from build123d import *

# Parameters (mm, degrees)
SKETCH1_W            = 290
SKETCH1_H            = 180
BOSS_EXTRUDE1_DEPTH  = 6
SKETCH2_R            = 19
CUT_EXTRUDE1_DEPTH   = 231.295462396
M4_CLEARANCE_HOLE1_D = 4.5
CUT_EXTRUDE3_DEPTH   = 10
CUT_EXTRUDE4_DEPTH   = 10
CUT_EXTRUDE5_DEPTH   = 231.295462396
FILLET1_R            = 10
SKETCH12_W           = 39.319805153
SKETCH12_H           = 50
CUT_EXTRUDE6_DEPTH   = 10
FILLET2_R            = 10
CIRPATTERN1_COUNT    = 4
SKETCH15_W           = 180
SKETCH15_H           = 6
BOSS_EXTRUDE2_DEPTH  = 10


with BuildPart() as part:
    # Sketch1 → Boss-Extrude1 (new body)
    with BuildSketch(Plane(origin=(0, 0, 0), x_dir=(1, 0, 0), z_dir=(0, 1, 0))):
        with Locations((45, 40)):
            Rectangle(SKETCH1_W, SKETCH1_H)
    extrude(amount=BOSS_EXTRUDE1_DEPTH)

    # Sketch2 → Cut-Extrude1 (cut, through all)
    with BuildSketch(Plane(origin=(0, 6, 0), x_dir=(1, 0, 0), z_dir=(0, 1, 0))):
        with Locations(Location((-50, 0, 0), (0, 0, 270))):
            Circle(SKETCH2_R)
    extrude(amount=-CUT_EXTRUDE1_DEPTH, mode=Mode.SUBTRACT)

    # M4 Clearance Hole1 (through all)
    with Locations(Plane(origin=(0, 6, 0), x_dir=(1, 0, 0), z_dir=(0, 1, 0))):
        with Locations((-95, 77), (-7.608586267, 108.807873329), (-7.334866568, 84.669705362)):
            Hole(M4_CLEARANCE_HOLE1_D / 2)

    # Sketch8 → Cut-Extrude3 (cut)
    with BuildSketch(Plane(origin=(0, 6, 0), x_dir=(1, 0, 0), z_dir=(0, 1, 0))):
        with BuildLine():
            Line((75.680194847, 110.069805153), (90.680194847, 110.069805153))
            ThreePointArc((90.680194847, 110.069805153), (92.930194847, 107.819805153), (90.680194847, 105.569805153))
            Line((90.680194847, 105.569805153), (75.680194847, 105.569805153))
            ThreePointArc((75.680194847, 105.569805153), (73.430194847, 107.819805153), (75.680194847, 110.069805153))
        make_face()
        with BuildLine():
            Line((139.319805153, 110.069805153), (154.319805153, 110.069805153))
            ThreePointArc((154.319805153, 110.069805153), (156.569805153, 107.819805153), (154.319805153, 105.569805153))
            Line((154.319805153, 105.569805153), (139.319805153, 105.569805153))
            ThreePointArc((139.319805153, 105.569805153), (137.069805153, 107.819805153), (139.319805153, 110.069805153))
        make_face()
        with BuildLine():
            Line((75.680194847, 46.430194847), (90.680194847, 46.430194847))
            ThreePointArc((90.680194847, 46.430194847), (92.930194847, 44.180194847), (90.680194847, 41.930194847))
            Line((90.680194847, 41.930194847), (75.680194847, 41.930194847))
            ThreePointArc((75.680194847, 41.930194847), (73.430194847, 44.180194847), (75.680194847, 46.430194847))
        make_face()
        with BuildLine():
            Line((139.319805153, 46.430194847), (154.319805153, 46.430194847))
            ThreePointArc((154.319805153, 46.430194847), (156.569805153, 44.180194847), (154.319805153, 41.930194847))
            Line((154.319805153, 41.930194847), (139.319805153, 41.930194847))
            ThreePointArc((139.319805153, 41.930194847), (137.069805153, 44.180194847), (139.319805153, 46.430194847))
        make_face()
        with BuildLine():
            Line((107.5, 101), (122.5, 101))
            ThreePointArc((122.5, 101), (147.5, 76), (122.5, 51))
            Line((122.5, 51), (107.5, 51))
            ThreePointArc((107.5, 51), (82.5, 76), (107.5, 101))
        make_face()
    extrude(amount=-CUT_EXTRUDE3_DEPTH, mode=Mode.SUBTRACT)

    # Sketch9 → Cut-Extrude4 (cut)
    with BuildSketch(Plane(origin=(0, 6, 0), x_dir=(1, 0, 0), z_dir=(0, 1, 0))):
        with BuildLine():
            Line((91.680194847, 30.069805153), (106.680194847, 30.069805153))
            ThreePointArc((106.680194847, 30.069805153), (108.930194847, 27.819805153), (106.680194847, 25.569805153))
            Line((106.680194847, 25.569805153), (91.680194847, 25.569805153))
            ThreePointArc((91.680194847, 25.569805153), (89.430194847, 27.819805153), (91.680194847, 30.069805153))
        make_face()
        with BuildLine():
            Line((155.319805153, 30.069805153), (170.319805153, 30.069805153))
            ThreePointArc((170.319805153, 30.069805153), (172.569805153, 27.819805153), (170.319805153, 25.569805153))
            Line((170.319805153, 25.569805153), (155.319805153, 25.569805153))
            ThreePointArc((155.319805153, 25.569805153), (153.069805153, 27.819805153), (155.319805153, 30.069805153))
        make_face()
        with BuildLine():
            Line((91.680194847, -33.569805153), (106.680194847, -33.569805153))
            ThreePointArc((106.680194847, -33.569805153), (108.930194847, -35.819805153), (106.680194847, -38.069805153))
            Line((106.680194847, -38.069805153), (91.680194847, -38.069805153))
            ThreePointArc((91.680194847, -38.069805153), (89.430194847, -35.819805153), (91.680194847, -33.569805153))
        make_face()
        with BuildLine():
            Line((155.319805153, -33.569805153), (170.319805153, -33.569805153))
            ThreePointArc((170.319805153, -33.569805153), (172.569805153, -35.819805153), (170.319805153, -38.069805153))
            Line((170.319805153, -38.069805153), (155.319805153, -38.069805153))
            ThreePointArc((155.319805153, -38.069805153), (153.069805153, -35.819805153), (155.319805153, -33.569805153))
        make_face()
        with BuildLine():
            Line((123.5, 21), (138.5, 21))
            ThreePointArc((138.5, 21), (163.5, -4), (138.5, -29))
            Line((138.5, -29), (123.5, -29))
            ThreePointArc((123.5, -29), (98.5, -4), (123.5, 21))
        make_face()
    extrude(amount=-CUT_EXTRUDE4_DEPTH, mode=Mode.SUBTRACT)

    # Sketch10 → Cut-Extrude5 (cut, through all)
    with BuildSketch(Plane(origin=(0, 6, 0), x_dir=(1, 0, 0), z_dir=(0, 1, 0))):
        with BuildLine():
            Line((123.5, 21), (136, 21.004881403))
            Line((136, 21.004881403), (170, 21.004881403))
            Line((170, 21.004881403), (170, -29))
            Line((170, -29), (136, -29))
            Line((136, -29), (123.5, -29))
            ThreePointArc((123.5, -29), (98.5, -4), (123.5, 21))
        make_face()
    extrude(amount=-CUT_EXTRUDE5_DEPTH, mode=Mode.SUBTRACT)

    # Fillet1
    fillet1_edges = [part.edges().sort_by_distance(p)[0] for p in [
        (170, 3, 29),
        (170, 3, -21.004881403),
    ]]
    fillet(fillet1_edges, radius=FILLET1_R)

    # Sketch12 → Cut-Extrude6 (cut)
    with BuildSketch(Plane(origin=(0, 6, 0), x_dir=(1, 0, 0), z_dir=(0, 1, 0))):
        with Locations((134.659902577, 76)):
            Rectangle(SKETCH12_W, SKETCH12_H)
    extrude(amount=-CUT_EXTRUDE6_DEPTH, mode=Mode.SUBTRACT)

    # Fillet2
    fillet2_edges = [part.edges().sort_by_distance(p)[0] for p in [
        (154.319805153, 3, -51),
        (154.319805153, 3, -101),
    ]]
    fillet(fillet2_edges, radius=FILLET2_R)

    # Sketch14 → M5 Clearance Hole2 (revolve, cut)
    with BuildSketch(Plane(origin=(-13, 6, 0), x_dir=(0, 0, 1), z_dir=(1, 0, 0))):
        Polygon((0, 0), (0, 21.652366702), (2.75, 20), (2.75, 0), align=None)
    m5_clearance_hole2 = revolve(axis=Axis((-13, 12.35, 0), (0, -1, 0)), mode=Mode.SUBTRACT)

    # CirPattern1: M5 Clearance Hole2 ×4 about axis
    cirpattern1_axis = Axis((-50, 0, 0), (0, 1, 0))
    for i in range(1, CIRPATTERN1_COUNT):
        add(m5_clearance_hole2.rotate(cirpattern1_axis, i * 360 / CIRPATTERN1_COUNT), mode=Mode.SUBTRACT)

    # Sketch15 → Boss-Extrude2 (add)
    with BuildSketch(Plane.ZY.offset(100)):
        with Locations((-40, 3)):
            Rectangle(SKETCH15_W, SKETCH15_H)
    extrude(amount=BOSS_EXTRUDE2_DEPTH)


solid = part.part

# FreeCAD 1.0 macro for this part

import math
import FreeCAD as App
import Part
import Sketcher

V = App.Vector
Q = App.Units.Quantity


def edges_at(feature, points):
    """Names of the edges that pass closest to the given points."""
    edges = feature.Shape.Edges
    near = lambda p: min(range(len(edges)), key=lambda i: edges[i].distToShape(Part.Vertex(*p))[0])
    return sorted({f"Edge{near(p) + 1}" for p in points})


def add_polygon(sketch, points):
    """Adds a closed chain of lines whose ends are joined by coincident constraints."""
    first, n = sketch.GeometryCount, len(points)
    for a, b in zip(points, points[1:] + points[:1]):
        sketch.addGeometry(Part.LineSegment(App.Vector(*a, 0), App.Vector(*b, 0)), False)
    for i in range(n):
        sketch.addConstraint(Sketcher.Constraint("Coincident", first + i, 2, first + (i + 1) % n, 1))

doc = App.newDocument("Part")
params = doc.addObject("Spreadsheet::Sheet", "Params")
for row, (alias, value) in enumerate([
    ("sketch1_width", "290 mm"),
    ("sketch1_height", "180 mm"),
    ("pad1_length", "6 mm"),
    ("sketch2_diameter", "38 mm"),
    ("sketch3_diameter", "4.5 mm"),
    ("hole_diameter", "4.5 mm"),
    ("sketch4_radius", "25 mm"),
    ("sketch4_width", "15 mm"),
    ("sketch4_radius2", "2.25 mm"),
    ("pocket2_length", "10 mm"),
    ("sketch5_radius", "25 mm"),
    ("sketch5_width", "15 mm"),
    ("sketch5_radius2", "2.25 mm"),
    ("pocket3_length", "10 mm"),
    ("sketch6_radius", "25 mm"),
    ("sketch6_width", "34 mm"),
    ("sketch6_width2", "46.5 mm"),
    ("fillet_radius", "10 mm"),
    ("sketch7_height", "50 mm"),
    ("pocket5_length", "10 mm"),
    ("fillet2_radius", "10 mm"),
    ("sketch8_width", "20 mm"),
    ("sketch8_height", "2.75 mm"),
    ("groove_angle", "360 deg"),
    ("sketch9_width", "6 mm"),
    ("sketch9_height", "180 mm"),
    ("pad2_length", "10 mm"),
], start=1):
    params.set(f"A{row}", alias)
    params.set(f"B{row}", "=" + value)
    params.setAlias(f"B{row}", alias)

body = doc.addObject("PartDesign::Body", "Body")

sketch1 = body.newObject("Sketcher::SketchObject", "Sketch")
sketch1.AttachmentSupport = (doc.getObject("XZ_Plane"), [""])
sketch1.MapMode = "FlatFace"
add_polygon(sketch1, [(-100, -130), (-100, 50), (190, 50), (190, -130)])
sketch1.addConstraint([
    Sketcher.Constraint("Vertical", 0),
    Sketcher.Constraint("Horizontal", 1),
    Sketcher.Constraint("Vertical", 2),
    Sketcher.Constraint("Horizontal", 3),
    Sketcher.Constraint("DistanceX", 1, 1, 1, 2, 290.0),
    Sketcher.Constraint("DistanceY", 0, 1, 0, 2, 180.0),
    Sketcher.Constraint("DistanceX", 0, 2, -1, 1, 100.0),
    Sketcher.Constraint("DistanceY", -1, 1, 0, 2, 50.0),
])
sketch1.setExpression("Constraints[8]", "Params.sketch1_width")
sketch1.setExpression("Constraints[9]", "Params.sketch1_height")
pad1 = body.newObject("PartDesign::Pad", "Pad")
pad1.Profile = sketch1
pad1.setExpression("Length", "Params.pad1_length")
pad1.Reversed = True

sketch2 = body.newObject("Sketcher::SketchObject", "Sketch001")
sketch2.AttachmentSupport = (doc.getObject("XZ_Plane"), [""])
sketch2.MapMode = "FlatFace"
sketch2.AttachmentOffset = App.Placement(V(0, 0, -6), App.Rotation())
sketch2.addGeometry(Part.Circle(V(-50, 0, 0), V(0, 0, 1), 19), False)
sketch2.addConstraint([
    Sketcher.Constraint("PointOnObject", 0, 3, -1),
    Sketcher.Constraint("Diameter", 0, 38.0),
    Sketcher.Constraint("DistanceX", 0, 3, -1, 1, 50.0),
])
sketch2.setExpression("Constraints[1]", "Params.sketch2_diameter")
pocket1 = body.newObject("PartDesign::Pocket", "Pocket")
pocket1.Profile = sketch2
pocket1.Type = "ThroughAll"
pocket1.Reversed = True

sketch3 = body.newObject("Sketcher::SketchObject", "Sketch002")
sketch3.AttachmentSupport = (doc.getObject("XZ_Plane"), [""])
sketch3.MapMode = "FlatFace"
sketch3.AttachmentOffset = App.Placement(V(0, 0, -6), App.Rotation())
sketch3.addGeometry([
    Part.Circle(V(-95, -77, 0), V(0, 0, 1), 2.2),
    Part.Circle(V(-7.6, -108.8, 0), V(0, 0, 1), 2.2),
    Part.Circle(V(-7.3, -84.7, 0), V(0, 0, 1), 2.2),
], False)
sketch3.addConstraint([
    Sketcher.Constraint("Equal", 0, 1),
    Sketcher.Constraint("Equal", 1, 2),
    Sketcher.Constraint("Diameter", 0, 4.5),
    Sketcher.Constraint("DistanceX", 0, 3, -1, 1, 95.0),
    Sketcher.Constraint("DistanceY", 0, 3, -1, 1, 77.0),
    Sketcher.Constraint("DistanceX", 1, 3, 2, 3, 0.27372),
    Sketcher.Constraint("DistanceX", 1, 3, -1, 1, 7.608586),
    Sketcher.Constraint("DistanceY", 1, 3, -1, 1, 108.807873),
    Sketcher.Constraint("DistanceY", 2, 3, -1, 1, 84.669705),
])
sketch3.setExpression("Constraints[2]", "Params.sketch3_diameter")
doc.recompute()
hole = body.newObject("PartDesign::Hole", "Hole")
hole.Profile = sketch3
hole.ThreadType = "None"
hole.setExpression("Diameter", "Params.hole_diameter")
hole.DepthType = "ThroughAll"
hole.Reversed = True

sketch4 = body.newObject("Sketcher::SketchObject", "Sketch003")
sketch4.AttachmentSupport = (doc.getObject("XZ_Plane"), [""])
sketch4.MapMode = "FlatFace"
sketch4.AttachmentOffset = App.Placement(V(0, 0, -6), App.Rotation())
sketch4.addGeometry([
    Part.LineSegment(V(90.7, -110.1, 0), V(75.7, -110.1, 0)),
    Part.ArcOfCircle(Part.Circle(V(75.7, -107.8, 0), V(0, 0, 1), 2.2), math.radians(90), math.radians(270)),
    Part.LineSegment(V(75.7, -105.6, 0), V(90.7, -105.6, 0)),
    Part.ArcOfCircle(Part.Circle(V(90.7, -107.8, 0), V(0, 0, 1), 2.2), math.radians(-90), math.radians(90)),
    Part.LineSegment(V(154.3, -110.1, 0), V(139.3, -110.1, 0)),
    Part.ArcOfCircle(Part.Circle(V(139.3, -107.8, 0), V(0, 0, 1), 2.2), math.radians(90), math.radians(270)),
    Part.LineSegment(V(139.3, -105.6, 0), V(154.3, -105.6, 0)),
    Part.ArcOfCircle(Part.Circle(V(154.3, -107.8, 0), V(0, 0, 1), 2.2), math.radians(-90), math.radians(90)),
    Part.LineSegment(V(90.7, -46.4, 0), V(75.7, -46.4, 0)),
    Part.ArcOfCircle(Part.Circle(V(75.7, -44.2, 0), V(0, 0, 1), 2.2), math.radians(90), math.radians(270)),
    Part.LineSegment(V(75.7, -41.9, 0), V(90.7, -41.9, 0)),
    Part.ArcOfCircle(Part.Circle(V(90.7, -44.2, 0), V(0, 0, 1), 2.2), math.radians(-90), math.radians(90)),
    Part.LineSegment(V(154.3, -46.4, 0), V(139.3, -46.4, 0)),
    Part.ArcOfCircle(Part.Circle(V(139.3, -44.2, 0), V(0, 0, 1), 2.2), math.radians(90), math.radians(270)),
    Part.LineSegment(V(139.3, -41.9, 0), V(154.3, -41.9, 0)),
    Part.ArcOfCircle(Part.Circle(V(154.3, -44.2, 0), V(0, 0, 1), 2.2), math.radians(-90), math.radians(90)),
    Part.LineSegment(V(122.5, -101, 0), V(107.5, -101, 0)),
    Part.ArcOfCircle(Part.Circle(V(107.5, -76, 0), V(0, 0, 1), 25), math.radians(90), math.radians(270)),
    Part.LineSegment(V(107.5, -51, 0), V(122.5, -51, 0)),
    Part.ArcOfCircle(Part.Circle(V(122.5, -76, 0), V(0, 0, 1), 25), math.radians(-90), math.radians(90)),
], False)
sketch4.addConstraint([
    Sketcher.Constraint("Tangent", 0, 2, 1, 2),
    Sketcher.Constraint("Tangent", 1, 1, 2, 1),
    Sketcher.Constraint("Tangent", 2, 2, 3, 2),
    Sketcher.Constraint("Tangent", 3, 1, 0, 1),
    Sketcher.Constraint("Tangent", 4, 2, 5, 2),
    Sketcher.Constraint("Tangent", 5, 1, 6, 1),
    Sketcher.Constraint("Tangent", 6, 2, 7, 2),
    Sketcher.Constraint("Tangent", 7, 1, 4, 1),
    Sketcher.Constraint("Tangent", 8, 2, 9, 2),
    Sketcher.Constraint("Tangent", 9, 1, 10, 1),
    Sketcher.Constraint("Tangent", 10, 2, 11, 2),
    Sketcher.Constraint("Tangent", 11, 1, 8, 1),
    Sketcher.Constraint("Tangent", 12, 2, 13, 2),
    Sketcher.Constraint("Tangent", 13, 1, 14, 1),
    Sketcher.Constraint("Tangent", 14, 2, 15, 2),
    Sketcher.Constraint("Tangent", 15, 1, 12, 1),
    Sketcher.Constraint("Tangent", 16, 2, 17, 2),
    Sketcher.Constraint("Tangent", 17, 1, 18, 1),
    Sketcher.Constraint("Tangent", 18, 2, 19, 2),
    Sketcher.Constraint("Tangent", 19, 1, 16, 1),
    Sketcher.Constraint("Horizontal", 0),
    Sketcher.Constraint("Horizontal", 2),
    Sketcher.Constraint("Horizontal", 4),
    Sketcher.Constraint("Horizontal", 6),
    Sketcher.Constraint("Horizontal", 8),
    Sketcher.Constraint("Horizontal", 10),
    Sketcher.Constraint("Horizontal", 12),
    Sketcher.Constraint("Horizontal", 14),
    Sketcher.Constraint("Horizontal", 16),
    Sketcher.Constraint("Horizontal", 18),
    Sketcher.Constraint("Equal", 3, 5),
    Sketcher.Constraint("Equal", 7, 9),
    Sketcher.Constraint("Equal", 11, 13),
    Sketcher.Constraint("Horizontal", 3, 3, 5, 3),
    Sketcher.Constraint("Horizontal", 11, 3, 13, 3),
    Sketcher.Constraint("Vertical", 1, 3, 9, 3),
    Sketcher.Constraint("Vertical", 3, 3, 11, 3),
    Sketcher.Constraint("Vertical", 5, 3, 13, 3),
    Sketcher.Constraint("Vertical", 7, 3, 15, 3),
    Sketcher.Constraint("Equal", 2, 4),
    Sketcher.Constraint("Equal", 14, 16),
    Sketcher.Constraint("Radius", 17, 25.0),
    Sketcher.Constraint("DistanceX", 0, 2, 0, 1, 15.0),
    Sketcher.Constraint("Radius", 1, 2.25),
    Sketcher.Constraint("DistanceY", 17, 3, -1, 1, 76.0),
    Sketcher.Constraint("DistanceX", -1, 1, 17, 3, 107.5),
    Sketcher.Constraint("DistanceX", 3, 3, 5, 3, 48.63961),
    Sketcher.Constraint("DistanceY", 1, 3, 9, 3, 63.63961),
    Sketcher.Constraint("DistanceX", -1, 1, 1, 3, 75.680195),
    Sketcher.Constraint("DistanceY", 1, 3, -1, 1, 107.819805),
])
sketch4.setExpression("Constraints[41]", "Params.sketch4_radius")
sketch4.setExpression("Constraints[42]", "Params.sketch4_width")
sketch4.setExpression("Constraints[43]", "Params.sketch4_radius2")
pocket2 = body.newObject("PartDesign::Pocket", "Pocket001")
pocket2.Profile = sketch4
pocket2.setExpression("Length", "Params.pocket2_length")
pocket2.Reversed = True

sketch5 = body.newObject("Sketcher::SketchObject", "Sketch004")
sketch5.AttachmentSupport = (doc.getObject("XZ_Plane"), [""])
sketch5.MapMode = "FlatFace"
sketch5.AttachmentOffset = App.Placement(V(0, 0, -6), App.Rotation())
sketch5.addGeometry([
    Part.LineSegment(V(106.7, -30.1, 0), V(91.7, -30.1, 0)),
    Part.ArcOfCircle(Part.Circle(V(91.7, -27.8, 0), V(0, 0, 1), 2.2), math.radians(90), math.radians(270)),
    Part.LineSegment(V(91.7, -25.6, 0), V(106.7, -25.6, 0)),
    Part.ArcOfCircle(Part.Circle(V(106.7, -27.8, 0), V(0, 0, 1), 2.2), math.radians(-90), math.radians(90)),
    Part.LineSegment(V(170.3, -30.1, 0), V(155.3, -30.1, 0)),
    Part.ArcOfCircle(Part.Circle(V(155.3, -27.8, 0), V(0, 0, 1), 2.2), math.radians(90), math.radians(270)),
    Part.LineSegment(V(155.3, -25.6, 0), V(170.3, -25.6, 0)),
    Part.ArcOfCircle(Part.Circle(V(170.3, -27.8, 0), V(0, 0, 1), 2.2), math.radians(-90), math.radians(90)),
    Part.LineSegment(V(106.7, 33.6, 0), V(91.7, 33.6, 0)),
    Part.ArcOfCircle(Part.Circle(V(91.7, 35.8, 0), V(0, 0, 1), 2.2), math.radians(90), math.radians(270)),
    Part.LineSegment(V(91.7, 38.1, 0), V(106.7, 38.1, 0)),
    Part.ArcOfCircle(Part.Circle(V(106.7, 35.8, 0), V(0, 0, 1), 2.2), math.radians(-90), math.radians(90)),
    Part.LineSegment(V(170.3, 33.6, 0), V(155.3, 33.6, 0)),
    Part.ArcOfCircle(Part.Circle(V(155.3, 35.8, 0), V(0, 0, 1), 2.2), math.radians(90), math.radians(270)),
    Part.LineSegment(V(155.3, 38.1, 0), V(170.3, 38.1, 0)),
    Part.ArcOfCircle(Part.Circle(V(170.3, 35.8, 0), V(0, 0, 1), 2.2), math.radians(-90), math.radians(90)),
    Part.LineSegment(V(138.5, -21, 0), V(123.5, -21, 0)),
    Part.ArcOfCircle(Part.Circle(V(123.5, 4, 0), V(0, 0, 1), 25), math.radians(90), math.radians(270)),
    Part.LineSegment(V(123.5, 29, 0), V(138.5, 29, 0)),
    Part.ArcOfCircle(Part.Circle(V(138.5, 4, 0), V(0, 0, 1), 25), math.radians(-90), math.radians(90)),
], False)
sketch5.addConstraint([
    Sketcher.Constraint("Tangent", 0, 2, 1, 2),
    Sketcher.Constraint("Tangent", 1, 1, 2, 1),
    Sketcher.Constraint("Tangent", 2, 2, 3, 2),
    Sketcher.Constraint("Tangent", 3, 1, 0, 1),
    Sketcher.Constraint("Tangent", 4, 2, 5, 2),
    Sketcher.Constraint("Tangent", 5, 1, 6, 1),
    Sketcher.Constraint("Tangent", 6, 2, 7, 2),
    Sketcher.Constraint("Tangent", 7, 1, 4, 1),
    Sketcher.Constraint("Tangent", 8, 2, 9, 2),
    Sketcher.Constraint("Tangent", 9, 1, 10, 1),
    Sketcher.Constraint("Tangent", 10, 2, 11, 2),
    Sketcher.Constraint("Tangent", 11, 1, 8, 1),
    Sketcher.Constraint("Tangent", 12, 2, 13, 2),
    Sketcher.Constraint("Tangent", 13, 1, 14, 1),
    Sketcher.Constraint("Tangent", 14, 2, 15, 2),
    Sketcher.Constraint("Tangent", 15, 1, 12, 1),
    Sketcher.Constraint("Tangent", 16, 2, 17, 2),
    Sketcher.Constraint("Tangent", 17, 1, 18, 1),
    Sketcher.Constraint("Tangent", 18, 2, 19, 2),
    Sketcher.Constraint("Tangent", 19, 1, 16, 1),
    Sketcher.Constraint("Horizontal", 0),
    Sketcher.Constraint("Horizontal", 2),
    Sketcher.Constraint("Horizontal", 4),
    Sketcher.Constraint("Horizontal", 6),
    Sketcher.Constraint("Horizontal", 8),
    Sketcher.Constraint("Horizontal", 10),
    Sketcher.Constraint("Horizontal", 12),
    Sketcher.Constraint("Horizontal", 14),
    Sketcher.Constraint("Horizontal", 16),
    Sketcher.Constraint("Horizontal", 18),
    Sketcher.Constraint("Equal", 3, 5),
    Sketcher.Constraint("Equal", 7, 9),
    Sketcher.Constraint("Equal", 11, 13),
    Sketcher.Constraint("Horizontal", 3, 3, 5, 3),
    Sketcher.Constraint("Horizontal", 11, 3, 13, 3),
    Sketcher.Constraint("Vertical", 1, 3, 9, 3),
    Sketcher.Constraint("Vertical", 3, 3, 11, 3),
    Sketcher.Constraint("Vertical", 5, 3, 13, 3),
    Sketcher.Constraint("Vertical", 7, 3, 15, 3),
    Sketcher.Constraint("Equal", 2, 4),
    Sketcher.Constraint("Equal", 14, 16),
    Sketcher.Constraint("Radius", 17, 25.0),
    Sketcher.Constraint("DistanceX", 0, 2, 0, 1, 15.0),
    Sketcher.Constraint("Radius", 1, 2.25),
    Sketcher.Constraint("DistanceY", -1, 1, 17, 3, 4.0),
    Sketcher.Constraint("DistanceX", -1, 1, 17, 3, 123.5),
    Sketcher.Constraint("DistanceX", 3, 3, 5, 3, 48.63961),
    Sketcher.Constraint("DistanceY", 1, 3, 9, 3, 63.63961),
    Sketcher.Constraint("DistanceX", -1, 1, 1, 3, 91.680195),
    Sketcher.Constraint("DistanceY", 1, 3, -1, 1, 27.819805),
])
sketch5.setExpression("Constraints[41]", "Params.sketch5_radius")
sketch5.setExpression("Constraints[42]", "Params.sketch5_width")
sketch5.setExpression("Constraints[43]", "Params.sketch5_radius2")
pocket3 = body.newObject("PartDesign::Pocket", "Pocket002")
pocket3.Profile = sketch5
pocket3.setExpression("Length", "Params.pocket3_length")
pocket3.Reversed = True

sketch6 = body.newObject("Sketcher::SketchObject", "Sketch005")
sketch6.AttachmentSupport = (doc.getObject("XZ_Plane"), [""])
sketch6.MapMode = "FlatFace"
sketch6.AttachmentOffset = App.Placement(V(0, 0, -6), App.Rotation())
sketch6.addGeometry([
    Part.LineSegment(V(136, -21, 0), V(124, -21, 0)),
    Part.ArcOfCircle(Part.Circle(V(124, 4, 0), V(0, 0, 1), 25), math.radians(90), math.radians(270)),
    Part.LineSegment(V(124, 29, 0), V(170, 29, 0)),
    Part.LineSegment(V(170, 29, 0), V(170, -21, 0)),
    Part.LineSegment(V(170, -21, 0), V(136, -21, 0)),
], False)
sketch6.addConstraint([
    Sketcher.Constraint("Coincident", 0, 2, 1, 2),
    Sketcher.Constraint("Tangent", 1, 1, 2, 1),
    Sketcher.Constraint("Coincident", 2, 2, 3, 1),
    Sketcher.Constraint("Coincident", 3, 2, 4, 1),
    Sketcher.Constraint("Coincident", 4, 2, 0, 1),
    Sketcher.Constraint("Horizontal", 2),
    Sketcher.Constraint("Vertical", 3),
    Sketcher.Constraint("Horizontal", 4),
    Sketcher.Constraint("Vertical", 1, 3, 0, 2),
    Sketcher.Constraint("Radius", 1, 25.0),
    Sketcher.Constraint("DistanceX", 4, 2, 4, 1, 34.0),
    Sketcher.Constraint("DistanceX", 2, 1, 2, 2, 46.5),
    Sketcher.Constraint("DistanceY", -1, 1, 1, 3, 4.0),
    Sketcher.Constraint("DistanceX", -1, 1, 2, 2, 170.0),
    Sketcher.Constraint("DistanceY", 3, 2, 3, 1, 50.004881),
])
sketch6.setExpression("Constraints[9]", "Params.sketch6_radius")
sketch6.setExpression("Constraints[10]", "Params.sketch6_width")
sketch6.setExpression("Constraints[11]", "Params.sketch6_width2")
pocket4 = body.newObject("PartDesign::Pocket", "Pocket003")
pocket4.Profile = sketch6
pocket4.Type = "ThroughAll"
pocket4.Reversed = True
doc.recompute()

fillet = body.newObject("PartDesign::Fillet", "Fillet")
fillet.Base = (pocket4, edges_at(pocket4, [(170, 3, 29), (170, 3, -21.005)]))
fillet.setExpression("Radius", "Params.fillet_radius")

sketch7 = body.newObject("Sketcher::SketchObject", "Sketch006")
sketch7.AttachmentSupport = (doc.getObject("XZ_Plane"), [""])
sketch7.MapMode = "FlatFace"
sketch7.AttachmentOffset = App.Placement(V(0, 0, -6), App.Rotation())
add_polygon(sketch7, [(115, -101), (115, -51), (154, -51), (154, -101)])
sketch7.addConstraint([
    Sketcher.Constraint("Vertical", 0),
    Sketcher.Constraint("Horizontal", 1),
    Sketcher.Constraint("Vertical", 2),
    Sketcher.Constraint("Horizontal", 3),
    Sketcher.Constraint("DistanceY", 0, 1, 0, 2, 50.0),
    Sketcher.Constraint("DistanceX", -1, 1, 0, 2, 115.0),
    Sketcher.Constraint("DistanceY", 0, 2, -1, 1, 51.0),
    Sketcher.Constraint("DistanceX", 1, 1, 1, 2, 39.319805),
])
sketch7.setExpression("Constraints[8]", "Params.sketch7_height")
pocket5 = body.newObject("PartDesign::Pocket", "Pocket004")
pocket5.Profile = sketch7
pocket5.setExpression("Length", "Params.pocket5_length")
pocket5.Reversed = True
doc.recompute()

fillet2 = body.newObject("PartDesign::Fillet", "Fillet001")
fillet2.Base = (pocket5, edges_at(pocket5, [(154.32, 3, -51), (154.32, 3, -101)]))
fillet2.setExpression("Radius", "Params.fillet2_radius")

sketch8 = body.newObject("Sketcher::SketchObject", "Sketch007")
sketch8.AttachmentSupport = (doc.getObject("YZ_Plane"), [""])
sketch8.MapMode = "FlatFace"
sketch8.AttachmentOffset = App.Placement(V(0, 0, -13), App.Rotation())
add_polygon(sketch8, [(-15.7, 0), (6, 0), (6, 2.8), (-14, 2.8)])
sketch8.addConstraint([
    Sketcher.Constraint("Horizontal", 0),
    Sketcher.Constraint("Vertical", 1),
    Sketcher.Constraint("Horizontal", 2),
    Sketcher.Constraint("PointOnObject", 0, 2, -1),
    Sketcher.Constraint("DistanceX", 2, 2, 2, 1, 20.0),
    Sketcher.Constraint("Angle", 3, Q("-121 deg")),
    Sketcher.Constraint("DistanceX", -1, 1, 0, 2, 6.0),
    Sketcher.Constraint("DistanceY", 1, 1, 1, 2, 2.75),
])
sketch8.setExpression("Constraints[8]", "Params.sketch8_width")
sketch8.setExpression("Constraints[11]", "Params.sketch8_height")
groove = body.newObject("PartDesign::Groove", "Groove")
groove.Profile = sketch8
groove.ReferenceAxis = (sketch8, ["H_Axis"])
groove.setExpression("Angle", "Params.groove_angle")
doc.recompute()

datumline = body.newObject("PartDesign::Line", "DatumLine")
datumline.Placement = App.Placement(V(-50, 0, 0), App.Rotation(V(0, 0, 1), V(0, 1, 0)))
polarpattern = body.newObject("PartDesign::PolarPattern", "PolarPattern")
polarpattern.Originals = [groove]
polarpattern.Axis = (datumline, [""])
polarpattern.Angle = 360
polarpattern.Occurrences = 4
body.Tip = polarpattern

sketch9 = body.newObject("Sketcher::SketchObject", "Sketch008")
sketch9.AttachmentSupport = (doc.getObject("YZ_Plane"), [""])
sketch9.MapMode = "FlatFace"
sketch9.AttachmentOffset = App.Placement(V(0, 0, -100), App.Rotation())
add_polygon(sketch9, [(6, -130), (0, -130), (0, 50), (6, 50)])
sketch9.addConstraint([
    Sketcher.Constraint("Horizontal", 0),
    Sketcher.Constraint("Vertical", 1),
    Sketcher.Constraint("Horizontal", 2),
    Sketcher.Constraint("Vertical", 3),
    Sketcher.Constraint("PointOnObject", 0, 2, -2),
    Sketcher.Constraint("DistanceX", 0, 2, 0, 1, 6.0),
    Sketcher.Constraint("DistanceY", 1, 1, 1, 2, 180.0),
    Sketcher.Constraint("DistanceY", 0, 2, -1, 1, 130.0),
])
sketch9.setExpression("Constraints[9]", "Params.sketch9_width")
sketch9.setExpression("Constraints[10]", "Params.sketch9_height")
pad2 = body.newObject("PartDesign::Pad", "Pad001")
pad2.Profile = sketch9
pad2.setExpression("Length", "Params.pad2_length")
pad2.Reversed = True

doc.recompute()
